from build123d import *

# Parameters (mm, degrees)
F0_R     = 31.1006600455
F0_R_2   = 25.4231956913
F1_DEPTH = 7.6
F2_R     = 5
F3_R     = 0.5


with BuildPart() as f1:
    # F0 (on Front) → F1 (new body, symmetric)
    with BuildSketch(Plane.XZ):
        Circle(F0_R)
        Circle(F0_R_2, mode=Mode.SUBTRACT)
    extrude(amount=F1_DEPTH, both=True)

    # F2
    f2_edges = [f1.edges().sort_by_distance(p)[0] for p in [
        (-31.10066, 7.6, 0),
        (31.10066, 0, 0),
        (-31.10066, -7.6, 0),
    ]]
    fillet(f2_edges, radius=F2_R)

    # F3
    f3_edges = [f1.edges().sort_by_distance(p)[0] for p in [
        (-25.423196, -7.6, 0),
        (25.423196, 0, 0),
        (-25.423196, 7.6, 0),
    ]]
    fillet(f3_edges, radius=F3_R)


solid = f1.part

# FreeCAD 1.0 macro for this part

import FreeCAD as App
import Part
import Sketcher

V = App.Vector
Q = App.Units.Quantity


def edges_at(feature, points):
    """Names of the edges that pass closest to the given points."""
    edges = feature.Shape.Edges
    near = lambda p: min(range(len(edges)), key=lambda i: edges[i].distToShape(Part.Vertex(*p))[0])
    return sorted({f"Edge{near(p) + 1}" for p in points})

doc = App.newDocument("Part")
body = doc.addObject("PartDesign::Body", "Body")

sketch1 = doc.addObject("Sketcher::SketchObject", "Sketch")
body.addObject(sketch1)
sketch1.AttachmentSupport = (doc.XZ_Plane, [""])
sketch1.MapMode = "FlatFace"
sketch1.addGeometry([
    Part.Circle(V(0, 0, 0), V(0, 0, 1), 31.10066),
    Part.Circle(V(0, 0, 0), V(0, 0, 1), 25.423196),
], False)
sketch1.addConstraint([
    Sketcher.Constraint("Coincident", 0, 3, -1, 1),
    Sketcher.Constraint("Coincident", 1, 3, -1, 1),
    Sketcher.Constraint("Diameter", 0, Q("62.20132 mm")),
    Sketcher.Constraint("Diameter", 1, Q("50.846391 mm")),
])
pad1 = doc.addObject("PartDesign::Pad", "Pad")
body.addObject(pad1)
pad1.Profile = sketch1
pad1.Length = 15.2
pad1.Midplane = True
doc.recompute()

fillet = doc.addObject("PartDesign::Fillet", "Fillet")
body.addObject(fillet)
fillet.Base = (pad1, edges_at(pad1, [(-31.101, 7.6, 0), (31.101, 0, 0), (-31.101, -7.6, 0)]))
fillet.Radius = 5
doc.recompute()

fillet2 = doc.addObject("PartDesign::Fillet", "Fillet001")
body.addObject(fillet2)
fillet2.Base = (fillet, edges_at(fillet, [(-25.423, -7.6, 0), (25.423, 0, 0), (-25.423, 7.6, 0)]))
fillet2.Radius = 0.5

doc.recompute()
